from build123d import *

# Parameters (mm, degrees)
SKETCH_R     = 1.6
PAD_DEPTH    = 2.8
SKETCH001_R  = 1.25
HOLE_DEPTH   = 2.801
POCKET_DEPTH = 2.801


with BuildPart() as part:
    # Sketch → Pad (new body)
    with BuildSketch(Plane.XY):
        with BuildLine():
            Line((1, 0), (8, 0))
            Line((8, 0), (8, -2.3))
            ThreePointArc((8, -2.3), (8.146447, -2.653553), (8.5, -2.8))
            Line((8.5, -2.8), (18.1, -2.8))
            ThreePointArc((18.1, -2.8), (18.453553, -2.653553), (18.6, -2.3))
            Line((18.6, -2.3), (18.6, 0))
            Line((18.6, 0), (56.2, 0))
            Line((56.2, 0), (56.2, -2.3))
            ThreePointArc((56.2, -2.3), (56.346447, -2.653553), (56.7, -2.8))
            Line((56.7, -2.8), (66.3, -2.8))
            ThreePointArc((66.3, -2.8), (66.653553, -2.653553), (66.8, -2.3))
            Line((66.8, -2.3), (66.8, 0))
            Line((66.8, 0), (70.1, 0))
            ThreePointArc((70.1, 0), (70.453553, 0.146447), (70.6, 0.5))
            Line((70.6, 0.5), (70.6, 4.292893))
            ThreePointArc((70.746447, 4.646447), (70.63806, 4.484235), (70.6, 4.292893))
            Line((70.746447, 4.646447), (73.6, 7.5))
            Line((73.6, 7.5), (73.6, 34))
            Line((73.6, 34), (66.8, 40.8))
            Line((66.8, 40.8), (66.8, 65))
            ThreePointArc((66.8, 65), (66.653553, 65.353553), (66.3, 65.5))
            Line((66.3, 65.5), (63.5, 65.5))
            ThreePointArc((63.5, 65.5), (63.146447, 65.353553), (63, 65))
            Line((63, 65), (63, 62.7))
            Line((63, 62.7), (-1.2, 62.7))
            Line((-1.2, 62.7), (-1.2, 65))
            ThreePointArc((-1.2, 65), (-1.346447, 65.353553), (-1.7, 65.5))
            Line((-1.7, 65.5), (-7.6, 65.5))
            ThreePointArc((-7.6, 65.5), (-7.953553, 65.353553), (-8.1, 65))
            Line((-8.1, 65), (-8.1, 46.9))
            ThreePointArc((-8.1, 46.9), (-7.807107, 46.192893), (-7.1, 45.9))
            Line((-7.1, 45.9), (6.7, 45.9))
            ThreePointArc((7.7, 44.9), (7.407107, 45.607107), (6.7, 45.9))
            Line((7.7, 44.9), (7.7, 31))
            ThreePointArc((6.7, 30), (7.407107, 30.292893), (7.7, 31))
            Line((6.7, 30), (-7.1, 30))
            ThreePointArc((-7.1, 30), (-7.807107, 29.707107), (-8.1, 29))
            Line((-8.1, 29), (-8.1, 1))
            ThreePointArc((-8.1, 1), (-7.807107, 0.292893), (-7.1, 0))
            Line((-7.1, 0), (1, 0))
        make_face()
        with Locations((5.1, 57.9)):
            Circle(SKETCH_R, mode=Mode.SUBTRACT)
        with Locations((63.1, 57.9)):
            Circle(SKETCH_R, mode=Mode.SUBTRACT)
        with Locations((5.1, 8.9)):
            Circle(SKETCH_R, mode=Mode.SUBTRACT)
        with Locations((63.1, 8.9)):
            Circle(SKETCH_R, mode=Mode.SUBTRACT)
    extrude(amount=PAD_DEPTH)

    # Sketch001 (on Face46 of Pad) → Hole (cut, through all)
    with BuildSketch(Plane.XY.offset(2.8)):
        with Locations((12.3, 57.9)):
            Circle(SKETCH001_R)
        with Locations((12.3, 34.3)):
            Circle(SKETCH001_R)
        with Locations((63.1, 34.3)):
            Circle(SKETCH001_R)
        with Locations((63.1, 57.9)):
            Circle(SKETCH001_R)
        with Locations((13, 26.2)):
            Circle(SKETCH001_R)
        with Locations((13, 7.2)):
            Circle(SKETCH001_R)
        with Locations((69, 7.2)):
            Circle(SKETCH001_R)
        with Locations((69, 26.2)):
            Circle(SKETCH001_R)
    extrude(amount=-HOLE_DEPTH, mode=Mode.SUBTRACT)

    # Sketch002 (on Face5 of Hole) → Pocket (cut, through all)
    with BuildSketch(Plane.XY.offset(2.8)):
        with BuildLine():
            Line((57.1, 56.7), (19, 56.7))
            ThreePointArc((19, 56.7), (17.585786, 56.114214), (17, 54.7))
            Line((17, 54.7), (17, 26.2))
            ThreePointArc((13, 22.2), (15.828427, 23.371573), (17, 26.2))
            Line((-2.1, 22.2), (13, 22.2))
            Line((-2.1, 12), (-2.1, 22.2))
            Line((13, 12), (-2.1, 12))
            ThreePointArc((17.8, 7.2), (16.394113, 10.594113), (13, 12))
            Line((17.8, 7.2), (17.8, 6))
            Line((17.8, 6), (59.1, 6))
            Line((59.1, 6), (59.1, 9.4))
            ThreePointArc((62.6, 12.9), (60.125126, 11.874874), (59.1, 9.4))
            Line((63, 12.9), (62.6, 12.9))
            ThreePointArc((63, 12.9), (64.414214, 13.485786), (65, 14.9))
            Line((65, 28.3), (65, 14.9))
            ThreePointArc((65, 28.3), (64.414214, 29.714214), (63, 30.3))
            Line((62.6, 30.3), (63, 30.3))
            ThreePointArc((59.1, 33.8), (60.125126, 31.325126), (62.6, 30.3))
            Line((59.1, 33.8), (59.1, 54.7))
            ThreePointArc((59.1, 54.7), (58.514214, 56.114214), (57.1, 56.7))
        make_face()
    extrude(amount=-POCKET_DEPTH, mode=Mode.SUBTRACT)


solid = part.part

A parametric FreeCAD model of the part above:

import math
import FreeCAD as App
import Part
import Sketcher
from FreeCAD import Vector
Q = App.Units.Quantity

doc = App.newDocument("Part")
body = doc.addObject("PartDesign::Body", "Body")

# Sketch on XY plane
sketch1 = body.newObject("Sketcher::SketchObject", "Sketch")
sketch1.AttachmentSupport = (doc.getObject("XY_Plane"), [""])
sketch1.MapMode = "FlatFace"
sketch1.addGeometry([
    Part.LineSegment(Vector(8, 0, 0), Vector(8, -2.3, 0)),  # 0
    Part.ArcOfCircle(Part.Circle(Vector(8.5, -2.3, 0), Vector(0, 0, 1), 0.5), math.radians(-180), math.radians(-90)),  # 1
    Part.LineSegment(Vector(8.5, -2.8, 0), Vector(18.1, -2.8, 0)),  # 2
    Part.ArcOfCircle(Part.Circle(Vector(18.1, -2.3, 0), Vector(0, 0, 1), 0.5), math.radians(-90), math.radians(0)),  # 3
    Part.LineSegment(Vector(18.6, -2.3, 0), Vector(18.6, 0, 0)),  # 4
    Part.LineSegment(Vector(18.6, 0, 0), Vector(56.2, 0, 0)),  # 5
    Part.LineSegment(Vector(56.2, 0, 0), Vector(56.2, -2.3, 0)),  # 6
    Part.ArcOfCircle(Part.Circle(Vector(56.7, -2.3, 0), Vector(0, 0, 1), 0.5), math.radians(-180), math.radians(-90)),  # 7
    Part.LineSegment(Vector(56.7, -2.8, 0), Vector(66.3, -2.8, 0)),  # 8
    Part.ArcOfCircle(Part.Circle(Vector(66.3, -2.3, 0), Vector(0, 0, 1), 0.5), math.radians(-90), math.radians(0)),  # 9
    Part.LineSegment(Vector(66.8, -2.3, 0), Vector(66.8, 0, 0)),  # 10
    Part.LineSegment(Vector(66.8, 0, 0), Vector(70.1, 0, 0)),  # 11
    Part.ArcOfCircle(Part.Circle(Vector(70.1, 0.5, 0), Vector(0, 0, 1), 0.5), math.radians(-90), math.radians(0)),  # 12
    Part.LineSegment(Vector(70.6, 0.5, 0), Vector(70.6, 4.29, 0)),  # 13
    Part.ArcOfCircle(Part.Circle(Vector(71.1, 4.29, 0), Vector(0, 0, 1), 0.5), math.radians(135), math.radians(180)),  # 14
    Part.LineSegment(Vector(70.75, 4.65, 0), Vector(73.6, 7.5, 0)),  # 15
    Part.LineSegment(Vector(73.6, 7.5, 0), Vector(73.6, 34, 0)),  # 16
    Part.LineSegment(Vector(73.6, 34, 0), Vector(66.8, 40.8, 0)),  # 17
    Part.LineSegment(Vector(66.8, 40.8, 0), Vector(66.8, 65, 0)),  # 18
    Part.ArcOfCircle(Part.Circle(Vector(66.3, 65, 0), Vector(0, 0, 1), 0.5), math.radians(0), math.radians(90)),  # 19
    Part.LineSegment(Vector(66.3, 65.5, 0), Vector(63.5, 65.5, 0)),  # 20
    Part.ArcOfCircle(Part.Circle(Vector(63.5, 65, 0), Vector(0, 0, 1), 0.5), math.radians(90), math.radians(180)),  # 21
    Part.LineSegment(Vector(63, 65, 0), Vector(63, 62.7, 0)),  # 22
    Part.LineSegment(Vector(63, 62.7, 0), Vector(-1.2, 62.7, 0)),  # 23
    Part.LineSegment(Vector(-1.2, 62.7, 0), Vector(-1.2, 65, 0)),  # 24
    Part.ArcOfCircle(Part.Circle(Vector(-1.7, 65, 0), Vector(0, 0, 1), 0.5), math.radians(0), math.radians(90)),  # 25
    Part.LineSegment(Vector(-1.7, 65.5, 0), Vector(-7.6, 65.5, 0)),  # 26
    Part.ArcOfCircle(Part.Circle(Vector(-7.6, 65, 0), Vector(0, 0, 1), 0.5), math.radians(90), math.radians(180)),  # 27
    Part.LineSegment(Vector(-8.1, 65, 0), Vector(-8.1, 46.9, 0)),  # 28
    Part.ArcOfCircle(Part.Circle(Vector(-7.1, 46.9, 0), Vector(0, 0, 1), 1), math.radians(180), math.radians(270)),  # 29
    Part.LineSegment(Vector(-7.1, 45.9, 0), Vector(6.7, 45.9, 0)),  # 30
    Part.ArcOfCircle(Part.Circle(Vector(6.7, 44.9, 0), Vector(0, 0, 1), 1), math.radians(0), math.radians(90)),  # 31
    Part.LineSegment(Vector(7.7, 44.9, 0), Vector(7.7, 31, 0)),  # 32
    Part.ArcOfCircle(Part.Circle(Vector(6.7, 31, 0), Vector(0, 0, 1), 1), math.radians(-90), math.radians(0)),  # 33
    Part.LineSegment(Vector(6.7, 30, 0), Vector(-7.1, 30, 0)),  # 34
    Part.ArcOfCircle(Part.Circle(Vector(-7.1, 29, 0), Vector(0, 0, 1), 1), math.radians(90), math.radians(180)),  # 35
    Part.LineSegment(Vector(-8.1, 29, 0), Vector(-8.1, 1, 0)),  # 36
    Part.ArcOfCircle(Part.Circle(Vector(-7.1, 1, 0), Vector(0, 0, 1), 1), math.radians(180), math.radians(270)),  # 37
    Part.LineSegment(Vector(-7.1, 0, 0), Vector(8, 0, 0)),  # 38
    Part.Circle(Vector(5.1, 8.9, 0), Vector(0, 0, 1), 1.6),  # 39
    Part.Circle(Vector(63.1, 8.9, 0), Vector(0, 0, 1), 1.6),  # 40
    Part.Circle(Vector(5.1, 57.9, 0), Vector(0, 0, 1), 1.6),  # 41
    Part.Circle(Vector(63.1, 57.9, 0), Vector(0, 0, 1), 1.6),  # 42
], False)
sketch1.addConstraint([
    Sketcher.Constraint("Coincident", 0, 2, 1, 1),
    Sketcher.Constraint("Coincident", 1, 2, 2, 1),
    Sketcher.Constraint("Coincident", 2, 2, 3, 1),
    Sketcher.Constraint("Coincident", 3, 2, 4, 1),
    Sketcher.Constraint("Coincident", 4, 2, 5, 1),
    Sketcher.Constraint("Coincident", 5, 2, 6, 1),
    Sketcher.Constraint("Coincident", 6, 2, 7, 1),
    Sketcher.Constraint("Coincident", 7, 2, 8, 1),
    Sketcher.Constraint("Coincident", 8, 2, 9, 1),
    Sketcher.Constraint("Coincident", 9, 2, 10, 1),
    Sketcher.Constraint("Coincident", 10, 2, 11, 1),
    Sketcher.Constraint("Coincident", 11, 2, 12, 1),
    Sketcher.Constraint("Coincident", 12, 2, 13, 1),
    Sketcher.Constraint("Coincident", 13, 2, 14, 2),
    Sketcher.Constraint("Coincident", 14, 1, 15, 1),
    Sketcher.Constraint("Coincident", 15, 2, 16, 1),
    Sketcher.Constraint("Coincident", 16, 2, 17, 1),
    Sketcher.Constraint("Coincident", 17, 2, 18, 1),
    Sketcher.Constraint("Coincident", 18, 2, 19, 1),
    Sketcher.Constraint("Coincident", 19, 2, 20, 1),
    Sketcher.Constraint("Coincident", 20, 2, 21, 1),
    Sketcher.Constraint("Coincident", 21, 2, 22, 1),
    Sketcher.Constraint("Coincident", 22, 2, 23, 1),
    Sketcher.Constraint("Coincident", 23, 2, 24, 1),
    Sketcher.Constraint("Coincident", 24, 2, 25, 1),
    Sketcher.Constraint("Coincident", 25, 2, 26, 1),
    Sketcher.Constraint("Coincident", 26, 2, 27, 1),
    Sketcher.Constraint("Coincident", 27, 2, 28, 1),
    Sketcher.Constraint("Tangent", 28, 2, 29, 1),
    Sketcher.Constraint("Tangent", 29, 2, 30, 1),
    Sketcher.Constraint("Tangent", 30, 2, 31, 2),
    Sketcher.Constraint("Tangent", 31, 1, 32, 1),
    Sketcher.Constraint("Tangent", 32, 2, 33, 2),
    Sketcher.Constraint("Tangent", 33, 1, 34, 1),
    Sketcher.Constraint("Tangent", 34, 2, 35, 1),
    Sketcher.Constraint("Tangent", 35, 2, 36, 1),
    Sketcher.Constraint("Tangent", 36, 2, 37, 1),
    Sketcher.Constraint("Tangent", 37, 2, 38, 1),
    Sketcher.Constraint("Coincident", 38, 2, 0, 1),
    Sketcher.Constraint("Vertical", 0),
    Sketcher.Constraint("Horizontal", 2),
    Sketcher.Constraint("Vertical", 4),
    Sketcher.Constraint("Horizontal", 5),
    Sketcher.Constraint("Vertical", 6),
    Sketcher.Constraint("Horizontal", 8),
    Sketcher.Constraint("Vertical", 10),
    Sketcher.Constraint("Horizontal", 11),
    Sketcher.Constraint("Vertical", 13),
    Sketcher.Constraint("Vertical", 16),
    Sketcher.Constraint("Vertical", 18),
    Sketcher.Constraint("Horizontal", 20),
    Sketcher.Constraint("Vertical", 22),
    Sketcher.Constraint("Horizontal", 23),
    Sketcher.Constraint("Vertical", 24),
    Sketcher.Constraint("Horizontal", 26),
    Sketcher.Constraint("Vertical", 28),
    Sketcher.Constraint("Horizontal", 30),
    Sketcher.Constraint("Vertical", 32),
    Sketcher.Constraint("Horizontal", 34),
    Sketcher.Constraint("Vertical", 36),
    Sketcher.Constraint("Horizontal", 38),
    Sketcher.Constraint("Equal", 1, 3),
    Sketcher.Constraint("Equal", 3, 7),
    Sketcher.Constraint("Equal", 7, 9),
    Sketcher.Constraint("Equal", 9, 12),
    Sketcher.Constraint("Equal", 12, 19),
    Sketcher.Constraint("Equal", 19, 21),
    Sketcher.Constraint("Equal", 21, 25),
    Sketcher.Constraint("Equal", 25, 27),
    Sketcher.Constraint("Equal", 29, 31),
    Sketcher.Constraint("Equal", 31, 33),
    Sketcher.Constraint("Equal", 33, 35),
    Sketcher.Constraint("Equal", 35, 37),
    Sketcher.Constraint("Equal", 39, 40),
    Sketcher.Constraint("Equal", 40, 41),
    Sketcher.Constraint("Equal", 41, 42),
    Sketcher.Constraint("PointOnObject", 4, 2, -1),
    Sketcher.Constraint("PointOnObject", 10, 2, -1),
    Sketcher.Constraint("PointOnObject", 37, 2, -1),
    Sketcher.Constraint("Perpendicular", 15, 17),
    Sketcher.Constraint("Horizontal", 3, 3, 7, 3),
    Sketcher.Constraint("Horizontal", 21, 3, 25, 3),
    Sketcher.Constraint("Horizontal", 39, 3, 40, 3),
    Sketcher.Constraint("Horizontal", 41, 3, 42, 3),
    Sketcher.Constraint("Horizontal", 9, 3, 0, 2),
    Sketcher.Constraint("Horizontal", 0, 2, 3, 2),
    Sketcher.Constraint("Horizontal", 3, 2, 6, 2),
    Sketcher.Constraint("Horizontal", 6, 2, 9, 2),
    Sketcher.Constraint("Horizontal", 14, 3, 13, 2),
    Sketcher.Constraint("Horizontal", 27, 3, 18, 2),
    Sketcher.Constraint("Horizontal", 18, 2, 21, 2),
    Sketcher.Constraint("Horizontal", 21, 2, 24, 2),
    Sketcher.Constraint("Horizontal", 24, 2, 27, 2),
    Sketcher.Constraint("Vertical", 9, 3, 19, 3),
    Sketcher.Constraint("Vertical", 29, 3, 35, 3),
    Sketcher.Constraint("Vertical", 39, 3, 41, 3),
    Sketcher.Constraint("Vertical", 40, 3, 42, 3),
    Sketcher.Constraint("Vertical", 3, 3, 2, 2),
    Sketcher.Constraint("Vertical", 19, 3, 8, 2),
    Sketcher.Constraint("Vertical", 12, 3, 11, 2),
    Sketcher.Constraint("Vertical", 8, 2, 19, 2),
    Sketcher.Constraint("Vertical", 21, 3, 20, 2),
    Sketcher.Constraint("Vertical", 27, 3, 26, 2),
    Sketcher.Constraint("Equal", 2, 8),
    Sketcher.Constraint("Equal", 10, 22),
    Sketcher.Constraint("Radius", 29, Q("0.999999 mm")),
    Sketcher.Constraint("Diameter", 39, Q("3.2 mm")),
    Sketcher.Constraint("Radius", 1, Q("0.500001 mm")),
    Sketcher.Constraint("DistanceY", 36, 2, 36, 1, Q("28 mm")),
    Sketcher.Constraint("Angle", 15, Q("45 deg")),
    Sketcher.Constraint("DistanceX", 2, 1, 2, 2, Q("9.6 mm")),
    Sketcher.Constraint("DistanceX", 5, 1, 5, 2, Q("37.6 mm")),
    Sketcher.Constraint("DistanceX", 11, 1, 11, 2, Q("3.3 mm")),
    Sketcher.Constraint("DistanceX", 20, 2, 20, 1, Q("2.8 mm")),
    Sketcher.Constraint("DistanceX", 23, 2, 23, 1, Q("64.2 mm")),
    Sketcher.Constraint("DistanceX", 26, 2, 26, 1, Q("5.9 mm")),
    Sketcher.Constraint("DistanceX", 30, 1, 30, 2, Q("13.8 mm")),
    Sketcher.Constraint("DistanceX", 38, 1, 38, 2, Q("15.1 mm")),
    Sketcher.Constraint("DistanceY", 0, 2, 0, 1, Q("2.3 mm")),
    Sketcher.Constraint("DistanceY", 16, 1, 16, 2, Q("26.5 mm")),
    Sketcher.Constraint("DistanceY", 18, 1, 18, 2, Q("24.2 mm")),
    Sketcher.Constraint("DistanceY", 28, 2, 28, 1, Q("18.1 mm")),
    Sketcher.Constraint("DistanceY", 32, 2, 32, 1, Q("13.9 mm")),
    Sketcher.Constraint("DistanceX", -1, 1, 0, 2, Q("8 mm")),
    Sketcher.Constraint("DistanceY", -1, 1, 16, 2, Q("34 mm")),
    Sketcher.Constraint("DistanceX", -1, 1, 21, 2, Q("63 mm")),
    Sketcher.Constraint("DistanceX", 3, 3, 12, 3, Q("52 mm")),
    Sketcher.Constraint("DistanceX", 12, 3, 14, 3, Q("0.999998 mm")),
    Sketcher.Constraint("DistanceX", 39, 3, 3, 3, Q("12.999999 mm")),
    Sketcher.Constraint("DistanceX", 40, 3, 12, 3, Q("6.999999 mm")),
    Sketcher.Constraint("DistanceY", 31, 3, 41, 3, Q("12.999999 mm")),
    Sketcher.Constraint("DistanceY", 40, 3, 42, 3, Q("49 mm")),
    Sketcher.Constraint("DistanceY", 12, 2, 15, 2, Q("7 mm")),
    Sketcher.Constraint("DistanceX", 14, 1, 14, 3, Q("0.35355 mm")),
])
pad1 = body.newObject("PartDesign::Pad", "Pad")
pad1.Profile = sketch1
pad1.Length = 2.8

# Sketch on XY plane
sketch2 = body.newObject("Sketcher::SketchObject", "Sketch001")
sketch2.AttachmentSupport = (doc.getObject("XY_Plane"), [""])
sketch2.MapMode = "FlatFace"
sketch2.AttachmentOffset = App.Placement(Vector(0, 0, 2.8), App.Rotation())
sketch2.addGeometry([
    Part.Circle(Vector(12.3, 57.9, 0), Vector(0, 0, 1), 1.2),  # 0
    Part.Circle(Vector(12.3, 34.3, 0), Vector(0, 0, 1), 1.2),  # 1
    Part.Circle(Vector(63.1, 34.3, 0), Vector(0, 0, 1), 1.2),  # 2
    Part.Circle(Vector(63.1, 57.9, 0), Vector(0, 0, 1), 1.2),  # 3
    Part.Circle(Vector(13, 26.2, 0), Vector(0, 0, 1), 1.2),  # 4
    Part.Circle(Vector(13, 7.2, 0), Vector(0, 0, 1), 1.2),  # 5
    Part.Circle(Vector(69, 7.2, 0), Vector(0, 0, 1), 1.2),  # 6
    Part.Circle(Vector(69, 26.2, 0), Vector(0, 0, 1), 1.2),  # 7
], False)
sketch2.addConstraint([
    Sketcher.Constraint("Equal", 0, 1),
    Sketcher.Constraint("Equal", 1, 2),
    Sketcher.Constraint("Equal", 2, 3),
    Sketcher.Constraint("Equal", 3, 4),
    Sketcher.Constraint("Equal", 4, 5),
    Sketcher.Constraint("Equal", 5, 6),
    Sketcher.Constraint("Equal", 6, 7),
    Sketcher.Constraint("Horizontal", 1, 3, 2, 3),
    Sketcher.Constraint("Horizontal", 0, 3, 3, 3),
    Sketcher.Constraint("Horizontal", 5, 3, 6, 3),
    Sketcher.Constraint("Horizontal", 4, 3, 7, 3),
    Sketcher.Constraint("Vertical", 0, 3, 1, 3),
    Sketcher.Constraint("Vertical", 2, 3, 3, 3),
    Sketcher.Constraint("Vertical", 4, 3, 5, 3),
    Sketcher.Constraint("Vertical", 6, 3, 7, 3),
    Sketcher.Constraint("Diameter", 0, Q("2.5 mm")),
    Sketcher.Constraint("DistanceX", -1, 1, 4, 3, Q("13 mm")),
    Sketcher.Constraint("DistanceX", -1, 1, 6, 3, Q("69 mm")),
    Sketcher.Constraint("DistanceY", 5, 3, 4, 3, Q("19 mm")),
    Sketcher.Constraint("DistanceX", -1, 1, 0, 3, Q("12.3 mm")),
    Sketcher.Constraint("DistanceY", -1, 1, 0, 3, Q("57.9 mm")),
    Sketcher.Constraint("DistanceY", -1, 1, 1, 3, Q("34.3 mm")),
    Sketcher.Constraint("DistanceX", -1, 1, 2, 3, Q("63.1 mm")),
    Sketcher.Constraint("DistanceY", -1, 1, 4, 3, Q("26.2 mm")),
])
pocket1 = body.newObject("PartDesign::Pocket", "Pocket")
pocket1.Profile = sketch2
pocket1.Type = "ThroughAll"

# Sketch on XY plane
sketch3 = body.newObject("Sketcher::SketchObject", "Sketch002")
sketch3.AttachmentSupport = (doc.getObject("XY_Plane"), [""])
sketch3.MapMode = "FlatFace"
sketch3.AttachmentOffset = App.Placement(Vector(0, 0, 2.8), App.Rotation())
sketch3.addGeometry([
    Part.LineSegment(Vector(57.1, 56.7, 0), Vector(19, 56.7, 0)),  # 0
    Part.ArcOfCircle(Part.Circle(Vector(19, 54.7, 0), Vector(0, 0, 1), 2), math.radians(90), math.radians(180)),  # 1
    Part.LineSegment(Vector(17, 54.7, 0), Vector(17, 26.2, 0)),  # 2
    Part.ArcOfCircle(Part.Circle(Vector(13, 26.2, 0), Vector(0, 0, 1), 4), math.radians(-90), math.radians(0)),  # 3
    Part.LineSegment(Vector(13, 22.2, 0), Vector(-2.1, 22.2, 0)),  # 4
    Part.LineSegment(Vector(-2.1, 22.2, 0), Vector(-2.1, 12, 0)),  # 5
    Part.LineSegment(Vector(-2.1, 12, 0), Vector(13, 12, 0)),  # 6
    Part.ArcOfCircle(Part.Circle(Vector(13, 7.2, 0), Vector(0, 0, 1), 4.8), math.radians(0), math.radians(90)),  # 7
    Part.LineSegment(Vector(17.8, 7.2, 0), Vector(17.8, 6, 0)),  # 8
    Part.LineSegment(Vector(17.8, 6, 0), Vector(59.1, 6, 0)),  # 9
    Part.LineSegment(Vector(59.1, 6, 0), Vector(59.1, 9.4, 0)),  # 10
    Part.ArcOfCircle(Part.Circle(Vector(62.6, 9.4, 0), Vector(0, 0, 1), 3.5), math.radians(90), math.radians(180)),  # 11
    Part.LineSegment(Vector(62.6, 12.9, 0), Vector(63, 12.9, 0)),  # 12
    Part.ArcOfCircle(Part.Circle(Vector(63, 14.9, 0), Vector(0, 0, 1), 2), math.radians(-90), math.radians(0)),  # 13
    Part.LineSegment(Vector(65, 14.9, 0), Vector(65, 28.3, 0)),  # 14
    Part.ArcOfCircle(Part.Circle(Vector(63, 28.3, 0), Vector(0, 0, 1), 2), math.radians(0), math.radians(90)),  # 15
    Part.LineSegment(Vector(63, 30.3, 0), Vector(62.6, 30.3, 0)),  # 16
    Part.ArcOfCircle(Part.Circle(Vector(62.6, 33.8, 0), Vector(0, 0, 1), 3.5), math.radians(180), math.radians(270)),  # 17
    Part.LineSegment(Vector(59.1, 33.8, 0), Vector(59.1, 54.7, 0)),  # 18
    Part.ArcOfCircle(Part.Circle(Vector(57.1, 54.7, 0), Vector(0, 0, 1), 2), math.radians(0), math.radians(90)),  # 19
], False)
sketch3.addConstraint([
    Sketcher.Constraint("Tangent", 0, 2, 1, 1),
    Sketcher.Constraint("Tangent", 1, 2, 2, 1),
    Sketcher.Constraint("Tangent", 2, 2, 3, 2),
    Sketcher.Constraint("Tangent", 3, 1, 4, 1),
    Sketcher.Constraint("Coincident", 4, 2, 5, 1),
    Sketcher.Constraint("Coincident", 5, 2, 6, 1),
    Sketcher.Constraint("Tangent", 6, 2, 7, 2),
    Sketcher.Constraint("Tangent", 7, 1, 8, 1),
    Sketcher.Constraint("Coincident", 8, 2, 9, 1),
    Sketcher.Constraint("Coincident", 9, 2, 10, 1),
    Sketcher.Constraint("Tangent", 10, 2, 11, 2),
    Sketcher.Constraint("Tangent", 11, 1, 12, 1),
    Sketcher.Constraint("Tangent", 12, 2, 13, 1),
    Sketcher.Constraint("Tangent", 13, 2, 14, 1),
    Sketcher.Constraint("Tangent", 14, 2, 15, 1),
    Sketcher.Constraint("Tangent", 15, 2, 16, 1),
    Sketcher.Constraint("Tangent", 16, 2, 17, 2),
    Sketcher.Constraint("Tangent", 17, 1, 18, 1),
    Sketcher.Constraint("Tangent", 18, 2, 19, 1),
    Sketcher.Constraint("Tangent", 19, 2, 0, 1),
    Sketcher.Constraint("Horizontal", 0),
    Sketcher.Constraint("Vertical", 2),
    Sketcher.Constraint("Horizontal", 4),
    Sketcher.Constraint("Vertical", 5),
    Sketcher.Constraint("Horizontal", 6),
    Sketcher.Constraint("Vertical", 8),
    Sketcher.Constraint("Horizontal", 9),
    Sketcher.Constraint("Vertical", 10),
    Sketcher.Constraint("Horizontal", 12),
    Sketcher.Constraint("Vertical", 14),
    Sketcher.Constraint("Horizontal", 16),
    Sketcher.Constraint("Vertical", 18),
    Sketcher.Constraint("Equal", 1, 13),
    Sketcher.Constraint("Equal", 13, 15),
    Sketcher.Constraint("Equal", 11, 17),
    Sketcher.Constraint("Equal", 15, 19),
    Sketcher.Constraint("Vertical", 3, 3, 7, 3),
    Sketcher.Constraint("Vertical", 11, 3, 17, 3),
    Sketcher.Constraint("Radius", 1, Q("1.999999 mm")),
    Sketcher.Constraint("Radius", 3, Q("4 mm")),
    Sketcher.Constraint("Radius", 7, Q("4.799998 mm")),
    Sketcher.Constraint("Radius", 11, Q("3.499999 mm")),
    Sketcher.Constraint("DistanceX", 0, 2, 0, 1, Q("38.1 mm")),
    Sketcher.Constraint("DistanceX", 4, 2, 4, 1, Q("15.1 mm")),
    Sketcher.Constraint("DistanceX", 12, 1, 12, 2, Q("0.4 mm")),
    Sketcher.Constraint("DistanceY", 2, 2, 2, 1, Q("28.5 mm")),
    Sketcher.Constraint("DistanceY", 5, 2, 5, 1, Q("10.2 mm")),
    Sketcher.Constraint("DistanceY", 8, 2, 8, 1, Q("1.2 mm")),
    Sketcher.Constraint("DistanceY", 10, 1, 10, 2, Q("3.4 mm")),
    Sketcher.Constraint("DistanceY", 14, 1, 14, 2, Q("13.4 mm")),
    Sketcher.Constraint("DistanceX", -1, 1, 1, 3, Q("18.999999 mm")),
    Sketcher.Constraint("DistanceY", -1, 1, 5, 2, Q("12 mm")),
])
pocket2 = body.newObject("PartDesign::Pocket", "Pocket001")
pocket2.Profile = sketch3
pocket2.Type = "ThroughAll"

doc.recompute()
